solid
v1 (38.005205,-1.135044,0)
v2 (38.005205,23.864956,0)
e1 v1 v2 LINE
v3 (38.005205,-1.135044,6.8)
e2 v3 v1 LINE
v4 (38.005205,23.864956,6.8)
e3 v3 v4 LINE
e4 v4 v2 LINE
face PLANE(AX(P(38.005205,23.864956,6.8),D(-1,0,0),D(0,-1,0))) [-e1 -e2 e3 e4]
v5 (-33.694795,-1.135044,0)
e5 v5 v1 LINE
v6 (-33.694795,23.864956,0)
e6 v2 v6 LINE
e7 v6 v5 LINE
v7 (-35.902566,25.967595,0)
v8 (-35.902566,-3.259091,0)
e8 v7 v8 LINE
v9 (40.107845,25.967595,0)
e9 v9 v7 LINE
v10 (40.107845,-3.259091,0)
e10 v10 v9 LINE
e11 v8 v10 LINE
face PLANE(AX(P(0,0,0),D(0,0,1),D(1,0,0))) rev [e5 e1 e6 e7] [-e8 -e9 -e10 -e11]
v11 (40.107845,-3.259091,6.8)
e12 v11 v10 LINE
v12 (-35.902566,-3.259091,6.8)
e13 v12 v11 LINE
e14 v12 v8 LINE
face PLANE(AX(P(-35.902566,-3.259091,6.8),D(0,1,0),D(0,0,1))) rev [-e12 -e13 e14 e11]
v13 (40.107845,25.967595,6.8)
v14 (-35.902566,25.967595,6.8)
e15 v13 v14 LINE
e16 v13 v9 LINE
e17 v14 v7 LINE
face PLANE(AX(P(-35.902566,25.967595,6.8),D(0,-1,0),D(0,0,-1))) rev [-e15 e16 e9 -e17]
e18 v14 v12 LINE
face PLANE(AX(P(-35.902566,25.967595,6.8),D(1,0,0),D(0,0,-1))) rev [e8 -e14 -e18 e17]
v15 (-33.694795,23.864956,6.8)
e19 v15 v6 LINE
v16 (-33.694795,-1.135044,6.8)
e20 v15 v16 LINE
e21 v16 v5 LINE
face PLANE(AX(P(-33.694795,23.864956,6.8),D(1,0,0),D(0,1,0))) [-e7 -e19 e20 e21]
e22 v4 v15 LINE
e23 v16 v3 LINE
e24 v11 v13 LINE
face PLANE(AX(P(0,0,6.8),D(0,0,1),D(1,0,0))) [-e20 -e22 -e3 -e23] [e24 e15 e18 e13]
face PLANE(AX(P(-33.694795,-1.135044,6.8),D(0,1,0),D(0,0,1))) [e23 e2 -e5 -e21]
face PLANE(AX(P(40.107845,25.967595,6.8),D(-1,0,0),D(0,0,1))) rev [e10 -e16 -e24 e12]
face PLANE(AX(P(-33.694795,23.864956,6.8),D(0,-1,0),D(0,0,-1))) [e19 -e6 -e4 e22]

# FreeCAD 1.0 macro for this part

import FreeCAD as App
import Part
import Sketcher
Q = App.Units.Quantity

doc = App.newDocument("Part")
body = doc.addObject("PartDesign::Body", "Body")

sketch1 = doc.addObject("Sketcher::SketchObject", "Sketch")
body.addObject(sketch1)
sketch1.AttachmentSupport = (doc.XY_Plane, [""])
sketch1.MapMode = "FlatFace"
sketch1.addGeometry([
    Part.LineSegment(App.Vector(-35.902566, 25.967595, 0), App.Vector(-35.902566, -3.259091, 0)),
    Part.LineSegment(App.Vector(-35.902566, -3.259091, 0), App.Vector(40.107845, -3.259091, 0)),
    Part.LineSegment(App.Vector(40.107845, -3.259091, 0), App.Vector(40.107845, 25.967595, 0)),
    Part.LineSegment(App.Vector(40.107845, 25.967595, 0), App.Vector(-35.902566, 25.967595, 0)),
    Part.LineSegment(App.Vector(38.005205, -1.135044, 0), App.Vector(-33.694795, -1.135044, 0)),
    Part.LineSegment(App.Vector(-33.694795, -1.135044, 0), App.Vector(-33.694795, 23.864956, 0)),
    Part.LineSegment(App.Vector(-33.694795, 23.864956, 0), App.Vector(38.005205, 23.864956, 0)),
    Part.LineSegment(App.Vector(38.005205, 23.864956, 0), App.Vector(38.005205, -1.135044, 0)),
], False)
sketch1.addConstraint([
    Sketcher.Constraint("Coincident", 0, 2, 1, 1),
    Sketcher.Constraint("Coincident", 1, 2, 2, 1),
    Sketcher.Constraint("Coincident", 2, 2, 3, 1),
    Sketcher.Constraint("Coincident", 3, 2, 0, 1),
    Sketcher.Constraint("Coincident", 4, 2, 5, 1),
    Sketcher.Constraint("Coincident", 5, 2, 6, 1),
    Sketcher.Constraint("Coincident", 6, 2, 7, 1),
    Sketcher.Constraint("Coincident", 7, 2, 4, 1),
    Sketcher.Constraint("Vertical", 0),
    Sketcher.Constraint("Horizontal", 1),
    Sketcher.Constraint("Vertical", 2),
    Sketcher.Constraint("Horizontal", 3),
    Sketcher.Constraint("Horizontal", 4),
    Sketcher.Constraint("Vertical", 5),
    Sketcher.Constraint("Horizontal", 6),
    Sketcher.Constraint("Vertical", 7),
    Sketcher.Constraint("DistanceY", 5, 1, 5, 2, Q("25 mm")),
    Sketcher.Constraint("DistanceX", 4, 2, 4, 1, Q("71.7 mm")),
    Sketcher.Constraint("DistanceX", 1, 1, 1, 2, Q("76.010411 mm")),
    Sketcher.Constraint("DistanceY", 0, 2, 0, 1, Q("29.226686 mm")),
    Sketcher.Constraint("DistanceY", 0, 2, -1, 1, Q("3.259091 mm")),
    Sketcher.Constraint("DistanceX", 0, 2, 4, 2, Q("2.207771 mm")),
    Sketcher.Constraint("DistanceY", 4, 2, 3, 2, Q("27.102639 mm")),
    Sketcher.Constraint("DistanceX", 0, 2, -1, 1, Q("35.902566 mm")),
])
pad1 = doc.addObject("PartDesign::Pad", "Pad")
body.addObject(pad1)
pad1.Profile = sketch1
pad1.Length = 6.8

doc.recompute()
